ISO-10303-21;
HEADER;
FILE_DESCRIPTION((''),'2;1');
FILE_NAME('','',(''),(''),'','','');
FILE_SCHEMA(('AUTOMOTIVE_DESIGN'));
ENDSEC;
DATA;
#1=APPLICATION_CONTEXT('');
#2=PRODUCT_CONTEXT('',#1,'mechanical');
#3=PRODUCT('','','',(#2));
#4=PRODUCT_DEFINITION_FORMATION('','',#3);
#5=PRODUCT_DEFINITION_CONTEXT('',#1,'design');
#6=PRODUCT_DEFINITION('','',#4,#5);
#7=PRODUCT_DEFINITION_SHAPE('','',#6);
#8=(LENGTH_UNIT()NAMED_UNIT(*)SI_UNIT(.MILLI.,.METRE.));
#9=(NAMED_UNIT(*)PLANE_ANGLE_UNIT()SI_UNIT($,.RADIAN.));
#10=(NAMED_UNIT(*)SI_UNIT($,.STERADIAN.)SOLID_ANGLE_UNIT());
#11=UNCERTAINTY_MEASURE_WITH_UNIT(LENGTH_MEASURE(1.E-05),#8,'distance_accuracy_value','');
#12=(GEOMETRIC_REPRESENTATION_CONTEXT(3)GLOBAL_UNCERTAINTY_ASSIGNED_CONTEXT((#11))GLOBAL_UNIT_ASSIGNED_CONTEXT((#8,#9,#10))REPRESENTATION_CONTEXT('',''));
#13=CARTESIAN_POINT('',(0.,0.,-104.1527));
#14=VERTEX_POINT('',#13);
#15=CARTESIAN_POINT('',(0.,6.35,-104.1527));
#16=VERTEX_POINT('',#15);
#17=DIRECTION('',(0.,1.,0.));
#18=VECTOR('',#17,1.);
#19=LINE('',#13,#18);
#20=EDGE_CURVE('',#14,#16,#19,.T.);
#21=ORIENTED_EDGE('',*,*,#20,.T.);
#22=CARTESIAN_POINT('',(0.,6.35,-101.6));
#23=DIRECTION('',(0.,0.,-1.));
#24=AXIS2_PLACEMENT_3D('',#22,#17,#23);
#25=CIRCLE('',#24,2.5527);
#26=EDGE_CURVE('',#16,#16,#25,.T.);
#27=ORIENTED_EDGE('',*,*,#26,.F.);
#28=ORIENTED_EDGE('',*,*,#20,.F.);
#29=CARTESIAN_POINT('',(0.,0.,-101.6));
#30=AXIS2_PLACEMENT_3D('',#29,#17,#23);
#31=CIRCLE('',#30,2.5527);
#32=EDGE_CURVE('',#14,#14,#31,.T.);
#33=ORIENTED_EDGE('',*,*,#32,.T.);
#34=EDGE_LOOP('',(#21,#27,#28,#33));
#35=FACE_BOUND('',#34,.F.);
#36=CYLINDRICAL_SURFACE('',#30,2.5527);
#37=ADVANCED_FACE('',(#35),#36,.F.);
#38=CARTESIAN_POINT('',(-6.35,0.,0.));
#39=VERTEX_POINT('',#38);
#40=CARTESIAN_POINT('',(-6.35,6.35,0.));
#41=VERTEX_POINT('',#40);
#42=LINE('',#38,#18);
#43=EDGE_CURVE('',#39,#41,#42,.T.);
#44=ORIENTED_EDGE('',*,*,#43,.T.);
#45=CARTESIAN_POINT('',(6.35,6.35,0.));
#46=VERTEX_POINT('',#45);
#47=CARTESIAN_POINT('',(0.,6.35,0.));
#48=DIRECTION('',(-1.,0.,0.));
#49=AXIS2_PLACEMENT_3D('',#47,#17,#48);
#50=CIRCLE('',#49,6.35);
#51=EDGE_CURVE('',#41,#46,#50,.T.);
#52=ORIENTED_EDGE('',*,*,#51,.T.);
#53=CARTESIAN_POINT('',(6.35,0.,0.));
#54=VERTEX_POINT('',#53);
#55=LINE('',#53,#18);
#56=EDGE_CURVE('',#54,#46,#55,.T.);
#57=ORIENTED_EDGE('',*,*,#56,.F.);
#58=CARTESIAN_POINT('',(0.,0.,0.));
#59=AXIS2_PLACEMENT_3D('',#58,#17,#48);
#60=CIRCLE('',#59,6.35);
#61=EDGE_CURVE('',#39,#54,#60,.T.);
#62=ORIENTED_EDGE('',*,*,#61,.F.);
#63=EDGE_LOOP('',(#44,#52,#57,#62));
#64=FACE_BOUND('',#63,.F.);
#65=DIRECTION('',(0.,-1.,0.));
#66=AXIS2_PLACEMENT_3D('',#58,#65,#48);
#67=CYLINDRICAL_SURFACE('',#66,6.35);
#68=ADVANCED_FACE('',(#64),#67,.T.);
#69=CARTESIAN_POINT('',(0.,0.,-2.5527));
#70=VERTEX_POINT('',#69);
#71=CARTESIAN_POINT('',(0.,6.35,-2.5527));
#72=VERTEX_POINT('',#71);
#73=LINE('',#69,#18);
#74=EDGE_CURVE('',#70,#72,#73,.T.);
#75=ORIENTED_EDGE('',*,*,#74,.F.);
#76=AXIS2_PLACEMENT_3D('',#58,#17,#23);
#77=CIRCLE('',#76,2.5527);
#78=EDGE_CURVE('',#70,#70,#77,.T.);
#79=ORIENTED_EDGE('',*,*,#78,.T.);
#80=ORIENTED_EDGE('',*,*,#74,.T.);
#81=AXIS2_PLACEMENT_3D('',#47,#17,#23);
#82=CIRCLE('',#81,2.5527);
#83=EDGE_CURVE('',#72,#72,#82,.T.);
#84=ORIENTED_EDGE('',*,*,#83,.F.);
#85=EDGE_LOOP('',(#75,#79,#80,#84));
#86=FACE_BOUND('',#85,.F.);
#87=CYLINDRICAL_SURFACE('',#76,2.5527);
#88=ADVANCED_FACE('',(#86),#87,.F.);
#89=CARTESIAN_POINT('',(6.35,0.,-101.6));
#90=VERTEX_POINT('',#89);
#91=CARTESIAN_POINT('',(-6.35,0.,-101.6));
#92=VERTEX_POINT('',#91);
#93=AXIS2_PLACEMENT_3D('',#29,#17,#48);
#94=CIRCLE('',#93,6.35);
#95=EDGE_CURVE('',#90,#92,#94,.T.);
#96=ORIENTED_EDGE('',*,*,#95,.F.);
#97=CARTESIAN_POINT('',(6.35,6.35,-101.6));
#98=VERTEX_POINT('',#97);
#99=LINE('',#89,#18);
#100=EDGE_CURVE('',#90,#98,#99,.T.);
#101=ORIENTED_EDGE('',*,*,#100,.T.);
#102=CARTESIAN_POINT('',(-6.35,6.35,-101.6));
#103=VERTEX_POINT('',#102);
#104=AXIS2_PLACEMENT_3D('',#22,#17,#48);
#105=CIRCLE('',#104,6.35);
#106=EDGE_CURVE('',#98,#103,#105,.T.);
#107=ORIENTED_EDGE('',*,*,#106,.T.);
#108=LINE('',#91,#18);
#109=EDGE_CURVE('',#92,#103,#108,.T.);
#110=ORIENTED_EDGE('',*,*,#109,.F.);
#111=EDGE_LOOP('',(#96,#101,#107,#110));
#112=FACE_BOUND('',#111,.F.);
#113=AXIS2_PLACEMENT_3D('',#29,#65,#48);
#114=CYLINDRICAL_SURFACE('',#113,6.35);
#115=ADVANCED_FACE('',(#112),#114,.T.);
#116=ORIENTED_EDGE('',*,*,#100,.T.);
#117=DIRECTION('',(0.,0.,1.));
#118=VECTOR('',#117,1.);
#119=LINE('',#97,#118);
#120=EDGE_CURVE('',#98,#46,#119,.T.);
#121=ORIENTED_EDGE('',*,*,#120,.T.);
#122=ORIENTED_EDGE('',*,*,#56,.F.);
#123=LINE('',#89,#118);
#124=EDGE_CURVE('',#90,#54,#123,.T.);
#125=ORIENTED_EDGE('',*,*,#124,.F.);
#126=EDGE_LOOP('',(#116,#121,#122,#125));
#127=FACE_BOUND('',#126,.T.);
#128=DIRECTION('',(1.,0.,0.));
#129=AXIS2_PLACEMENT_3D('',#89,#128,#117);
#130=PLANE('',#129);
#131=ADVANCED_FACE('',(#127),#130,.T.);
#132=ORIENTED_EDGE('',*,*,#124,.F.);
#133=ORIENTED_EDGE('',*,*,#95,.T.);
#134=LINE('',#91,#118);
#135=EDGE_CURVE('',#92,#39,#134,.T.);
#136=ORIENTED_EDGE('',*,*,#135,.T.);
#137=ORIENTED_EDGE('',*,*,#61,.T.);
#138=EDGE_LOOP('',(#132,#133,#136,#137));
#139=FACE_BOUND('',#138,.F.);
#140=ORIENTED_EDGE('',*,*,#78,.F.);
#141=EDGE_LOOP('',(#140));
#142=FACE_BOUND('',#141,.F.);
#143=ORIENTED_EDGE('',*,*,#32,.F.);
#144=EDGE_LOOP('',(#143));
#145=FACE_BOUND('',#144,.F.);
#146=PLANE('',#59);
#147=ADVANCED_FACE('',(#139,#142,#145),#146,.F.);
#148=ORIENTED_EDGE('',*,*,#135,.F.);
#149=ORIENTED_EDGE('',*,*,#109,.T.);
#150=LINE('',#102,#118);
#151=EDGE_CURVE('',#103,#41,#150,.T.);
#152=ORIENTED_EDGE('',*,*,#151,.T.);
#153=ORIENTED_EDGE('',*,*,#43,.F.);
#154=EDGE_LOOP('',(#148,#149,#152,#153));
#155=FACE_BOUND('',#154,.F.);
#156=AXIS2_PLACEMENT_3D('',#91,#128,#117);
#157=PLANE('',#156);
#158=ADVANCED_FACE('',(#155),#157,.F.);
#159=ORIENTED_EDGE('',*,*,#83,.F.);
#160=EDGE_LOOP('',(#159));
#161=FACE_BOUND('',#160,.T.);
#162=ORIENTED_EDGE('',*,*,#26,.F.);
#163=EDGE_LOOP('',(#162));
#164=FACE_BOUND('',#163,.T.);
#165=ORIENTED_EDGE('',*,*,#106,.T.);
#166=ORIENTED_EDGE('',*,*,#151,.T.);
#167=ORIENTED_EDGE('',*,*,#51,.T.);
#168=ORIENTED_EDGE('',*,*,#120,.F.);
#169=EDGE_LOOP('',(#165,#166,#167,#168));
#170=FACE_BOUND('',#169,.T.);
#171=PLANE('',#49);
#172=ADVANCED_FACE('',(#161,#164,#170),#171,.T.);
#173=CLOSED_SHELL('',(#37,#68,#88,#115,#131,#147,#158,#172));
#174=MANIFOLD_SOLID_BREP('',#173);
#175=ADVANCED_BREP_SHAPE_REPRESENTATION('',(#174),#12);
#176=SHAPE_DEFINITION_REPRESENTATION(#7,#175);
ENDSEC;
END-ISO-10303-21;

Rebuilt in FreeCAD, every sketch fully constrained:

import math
import FreeCAD as App
import Part
import Sketcher
from FreeCAD import Vector
Q = App.Units.Quantity

doc = App.newDocument("Part")
params = doc.addObject("Spreadsheet::Sheet", "Params")
for row, (alias, value) in enumerate([
    ("sketch1_height", "4 in"),
    ("sketch1_radius", "0.25 in"),
    ("pad1_length", "0.25 in"),
    ("sketch2_diameter", "0.201 in"),
    ("hole_diameter", "0.201 in"),
    ("hole_depth", "0.536 in"),
], start=1):
    params.set(f"A{row}", alias)
    params.set(f"B{row}", "=" + value)
    params.setAlias(f"B{row}", alias)

body = doc.addObject("PartDesign::Body", "Body")

# Sketch on XZ plane
sketch1 = body.newObject("Sketcher::SketchObject", "Sketch")
sketch1.AttachmentSupport = (doc.getObject("XZ_Plane"), [""])
sketch1.MapMode = "FlatFace"
sketch1.addGeometry([
    Part.ArcOfCircle(Part.Circle(Vector(0, 0, 0), Vector(0, 0, 1), 6.35), math.radians(0), math.radians(180)),
    Part.LineSegment(Vector(6.35, 0, 0), Vector(6.35, -101.6, 0)),
    Part.ArcOfCircle(Part.Circle(Vector(0, -101.6, 0), Vector(0, 0, 1), 6.35), math.radians(180), math.radians(360)),
    Part.LineSegment(Vector(-6.35, -101.6, 0), Vector(-6.35, 0, 0)),
], False)
sketch1.addConstraint([
    Sketcher.Constraint("Tangent", 0, 1, 1, 1),
    Sketcher.Constraint("Tangent", 1, 2, 2, 2),
    Sketcher.Constraint("Tangent", 2, 1, 3, 1),
    Sketcher.Constraint("Tangent", 3, 2, 0, 2),
    Sketcher.Constraint("Vertical", 1),
    Sketcher.Constraint("Vertical", 3),
    Sketcher.Constraint("Coincident", 0, 3, -1, 1),
    Sketcher.Constraint("DistanceY", 1, 2, 1, 1, Q("4 in")),
    Sketcher.Constraint("Radius", 0, Q("0.25 in")),
])
sketch1.setExpression("Constraints[7]", "Params.sketch1_height")
sketch1.setExpression("Constraints[8]", "Params.sketch1_radius")
pad1 = body.newObject("PartDesign::Pad", "Pad")
pad1.Profile = sketch1
pad1.setExpression("Length", "Params.pad1_length")
pad1.Reversed = True

# Sketch on XZ plane
sketch2 = body.newObject("Sketcher::SketchObject", "Sketch001")
sketch2.AttachmentSupport = (doc.getObject("XZ_Plane"), [""])
sketch2.MapMode = "FlatFace"
sketch2.addGeometry([
    Part.Circle(Vector(0, 0, 0), Vector(0, 0, 1), 2.5527),
    Part.Circle(Vector(0, -101.6, 0), Vector(0, 0, 1), 2.5527),
], False)
sketch2.addConstraint([
    Sketcher.Constraint("Coincident", 0, 3, -1, 1),
    Sketcher.Constraint("Equal", 0, 1),
    Sketcher.Constraint("PointOnObject", 1, 3, -2),
    Sketcher.Constraint("Diameter", 0, Q("0.201 in")),
    Sketcher.Constraint("DistanceY", 1, 3, -1, 1, Q("4 in")),
])
sketch2.setExpression("Constraints[3]", "Params.sketch2_diameter")
doc.recompute()
hole = body.newObject("PartDesign::Hole", "Hole")
hole.Profile = sketch2
hole.ThreadType = "None"
hole.setExpression("Diameter", "Params.hole_diameter")
hole.DepthType = "Dimension"
hole.setExpression("Depth", "Params.hole_depth")
hole.DrillPoint = "Flat"

doc.recompute()
